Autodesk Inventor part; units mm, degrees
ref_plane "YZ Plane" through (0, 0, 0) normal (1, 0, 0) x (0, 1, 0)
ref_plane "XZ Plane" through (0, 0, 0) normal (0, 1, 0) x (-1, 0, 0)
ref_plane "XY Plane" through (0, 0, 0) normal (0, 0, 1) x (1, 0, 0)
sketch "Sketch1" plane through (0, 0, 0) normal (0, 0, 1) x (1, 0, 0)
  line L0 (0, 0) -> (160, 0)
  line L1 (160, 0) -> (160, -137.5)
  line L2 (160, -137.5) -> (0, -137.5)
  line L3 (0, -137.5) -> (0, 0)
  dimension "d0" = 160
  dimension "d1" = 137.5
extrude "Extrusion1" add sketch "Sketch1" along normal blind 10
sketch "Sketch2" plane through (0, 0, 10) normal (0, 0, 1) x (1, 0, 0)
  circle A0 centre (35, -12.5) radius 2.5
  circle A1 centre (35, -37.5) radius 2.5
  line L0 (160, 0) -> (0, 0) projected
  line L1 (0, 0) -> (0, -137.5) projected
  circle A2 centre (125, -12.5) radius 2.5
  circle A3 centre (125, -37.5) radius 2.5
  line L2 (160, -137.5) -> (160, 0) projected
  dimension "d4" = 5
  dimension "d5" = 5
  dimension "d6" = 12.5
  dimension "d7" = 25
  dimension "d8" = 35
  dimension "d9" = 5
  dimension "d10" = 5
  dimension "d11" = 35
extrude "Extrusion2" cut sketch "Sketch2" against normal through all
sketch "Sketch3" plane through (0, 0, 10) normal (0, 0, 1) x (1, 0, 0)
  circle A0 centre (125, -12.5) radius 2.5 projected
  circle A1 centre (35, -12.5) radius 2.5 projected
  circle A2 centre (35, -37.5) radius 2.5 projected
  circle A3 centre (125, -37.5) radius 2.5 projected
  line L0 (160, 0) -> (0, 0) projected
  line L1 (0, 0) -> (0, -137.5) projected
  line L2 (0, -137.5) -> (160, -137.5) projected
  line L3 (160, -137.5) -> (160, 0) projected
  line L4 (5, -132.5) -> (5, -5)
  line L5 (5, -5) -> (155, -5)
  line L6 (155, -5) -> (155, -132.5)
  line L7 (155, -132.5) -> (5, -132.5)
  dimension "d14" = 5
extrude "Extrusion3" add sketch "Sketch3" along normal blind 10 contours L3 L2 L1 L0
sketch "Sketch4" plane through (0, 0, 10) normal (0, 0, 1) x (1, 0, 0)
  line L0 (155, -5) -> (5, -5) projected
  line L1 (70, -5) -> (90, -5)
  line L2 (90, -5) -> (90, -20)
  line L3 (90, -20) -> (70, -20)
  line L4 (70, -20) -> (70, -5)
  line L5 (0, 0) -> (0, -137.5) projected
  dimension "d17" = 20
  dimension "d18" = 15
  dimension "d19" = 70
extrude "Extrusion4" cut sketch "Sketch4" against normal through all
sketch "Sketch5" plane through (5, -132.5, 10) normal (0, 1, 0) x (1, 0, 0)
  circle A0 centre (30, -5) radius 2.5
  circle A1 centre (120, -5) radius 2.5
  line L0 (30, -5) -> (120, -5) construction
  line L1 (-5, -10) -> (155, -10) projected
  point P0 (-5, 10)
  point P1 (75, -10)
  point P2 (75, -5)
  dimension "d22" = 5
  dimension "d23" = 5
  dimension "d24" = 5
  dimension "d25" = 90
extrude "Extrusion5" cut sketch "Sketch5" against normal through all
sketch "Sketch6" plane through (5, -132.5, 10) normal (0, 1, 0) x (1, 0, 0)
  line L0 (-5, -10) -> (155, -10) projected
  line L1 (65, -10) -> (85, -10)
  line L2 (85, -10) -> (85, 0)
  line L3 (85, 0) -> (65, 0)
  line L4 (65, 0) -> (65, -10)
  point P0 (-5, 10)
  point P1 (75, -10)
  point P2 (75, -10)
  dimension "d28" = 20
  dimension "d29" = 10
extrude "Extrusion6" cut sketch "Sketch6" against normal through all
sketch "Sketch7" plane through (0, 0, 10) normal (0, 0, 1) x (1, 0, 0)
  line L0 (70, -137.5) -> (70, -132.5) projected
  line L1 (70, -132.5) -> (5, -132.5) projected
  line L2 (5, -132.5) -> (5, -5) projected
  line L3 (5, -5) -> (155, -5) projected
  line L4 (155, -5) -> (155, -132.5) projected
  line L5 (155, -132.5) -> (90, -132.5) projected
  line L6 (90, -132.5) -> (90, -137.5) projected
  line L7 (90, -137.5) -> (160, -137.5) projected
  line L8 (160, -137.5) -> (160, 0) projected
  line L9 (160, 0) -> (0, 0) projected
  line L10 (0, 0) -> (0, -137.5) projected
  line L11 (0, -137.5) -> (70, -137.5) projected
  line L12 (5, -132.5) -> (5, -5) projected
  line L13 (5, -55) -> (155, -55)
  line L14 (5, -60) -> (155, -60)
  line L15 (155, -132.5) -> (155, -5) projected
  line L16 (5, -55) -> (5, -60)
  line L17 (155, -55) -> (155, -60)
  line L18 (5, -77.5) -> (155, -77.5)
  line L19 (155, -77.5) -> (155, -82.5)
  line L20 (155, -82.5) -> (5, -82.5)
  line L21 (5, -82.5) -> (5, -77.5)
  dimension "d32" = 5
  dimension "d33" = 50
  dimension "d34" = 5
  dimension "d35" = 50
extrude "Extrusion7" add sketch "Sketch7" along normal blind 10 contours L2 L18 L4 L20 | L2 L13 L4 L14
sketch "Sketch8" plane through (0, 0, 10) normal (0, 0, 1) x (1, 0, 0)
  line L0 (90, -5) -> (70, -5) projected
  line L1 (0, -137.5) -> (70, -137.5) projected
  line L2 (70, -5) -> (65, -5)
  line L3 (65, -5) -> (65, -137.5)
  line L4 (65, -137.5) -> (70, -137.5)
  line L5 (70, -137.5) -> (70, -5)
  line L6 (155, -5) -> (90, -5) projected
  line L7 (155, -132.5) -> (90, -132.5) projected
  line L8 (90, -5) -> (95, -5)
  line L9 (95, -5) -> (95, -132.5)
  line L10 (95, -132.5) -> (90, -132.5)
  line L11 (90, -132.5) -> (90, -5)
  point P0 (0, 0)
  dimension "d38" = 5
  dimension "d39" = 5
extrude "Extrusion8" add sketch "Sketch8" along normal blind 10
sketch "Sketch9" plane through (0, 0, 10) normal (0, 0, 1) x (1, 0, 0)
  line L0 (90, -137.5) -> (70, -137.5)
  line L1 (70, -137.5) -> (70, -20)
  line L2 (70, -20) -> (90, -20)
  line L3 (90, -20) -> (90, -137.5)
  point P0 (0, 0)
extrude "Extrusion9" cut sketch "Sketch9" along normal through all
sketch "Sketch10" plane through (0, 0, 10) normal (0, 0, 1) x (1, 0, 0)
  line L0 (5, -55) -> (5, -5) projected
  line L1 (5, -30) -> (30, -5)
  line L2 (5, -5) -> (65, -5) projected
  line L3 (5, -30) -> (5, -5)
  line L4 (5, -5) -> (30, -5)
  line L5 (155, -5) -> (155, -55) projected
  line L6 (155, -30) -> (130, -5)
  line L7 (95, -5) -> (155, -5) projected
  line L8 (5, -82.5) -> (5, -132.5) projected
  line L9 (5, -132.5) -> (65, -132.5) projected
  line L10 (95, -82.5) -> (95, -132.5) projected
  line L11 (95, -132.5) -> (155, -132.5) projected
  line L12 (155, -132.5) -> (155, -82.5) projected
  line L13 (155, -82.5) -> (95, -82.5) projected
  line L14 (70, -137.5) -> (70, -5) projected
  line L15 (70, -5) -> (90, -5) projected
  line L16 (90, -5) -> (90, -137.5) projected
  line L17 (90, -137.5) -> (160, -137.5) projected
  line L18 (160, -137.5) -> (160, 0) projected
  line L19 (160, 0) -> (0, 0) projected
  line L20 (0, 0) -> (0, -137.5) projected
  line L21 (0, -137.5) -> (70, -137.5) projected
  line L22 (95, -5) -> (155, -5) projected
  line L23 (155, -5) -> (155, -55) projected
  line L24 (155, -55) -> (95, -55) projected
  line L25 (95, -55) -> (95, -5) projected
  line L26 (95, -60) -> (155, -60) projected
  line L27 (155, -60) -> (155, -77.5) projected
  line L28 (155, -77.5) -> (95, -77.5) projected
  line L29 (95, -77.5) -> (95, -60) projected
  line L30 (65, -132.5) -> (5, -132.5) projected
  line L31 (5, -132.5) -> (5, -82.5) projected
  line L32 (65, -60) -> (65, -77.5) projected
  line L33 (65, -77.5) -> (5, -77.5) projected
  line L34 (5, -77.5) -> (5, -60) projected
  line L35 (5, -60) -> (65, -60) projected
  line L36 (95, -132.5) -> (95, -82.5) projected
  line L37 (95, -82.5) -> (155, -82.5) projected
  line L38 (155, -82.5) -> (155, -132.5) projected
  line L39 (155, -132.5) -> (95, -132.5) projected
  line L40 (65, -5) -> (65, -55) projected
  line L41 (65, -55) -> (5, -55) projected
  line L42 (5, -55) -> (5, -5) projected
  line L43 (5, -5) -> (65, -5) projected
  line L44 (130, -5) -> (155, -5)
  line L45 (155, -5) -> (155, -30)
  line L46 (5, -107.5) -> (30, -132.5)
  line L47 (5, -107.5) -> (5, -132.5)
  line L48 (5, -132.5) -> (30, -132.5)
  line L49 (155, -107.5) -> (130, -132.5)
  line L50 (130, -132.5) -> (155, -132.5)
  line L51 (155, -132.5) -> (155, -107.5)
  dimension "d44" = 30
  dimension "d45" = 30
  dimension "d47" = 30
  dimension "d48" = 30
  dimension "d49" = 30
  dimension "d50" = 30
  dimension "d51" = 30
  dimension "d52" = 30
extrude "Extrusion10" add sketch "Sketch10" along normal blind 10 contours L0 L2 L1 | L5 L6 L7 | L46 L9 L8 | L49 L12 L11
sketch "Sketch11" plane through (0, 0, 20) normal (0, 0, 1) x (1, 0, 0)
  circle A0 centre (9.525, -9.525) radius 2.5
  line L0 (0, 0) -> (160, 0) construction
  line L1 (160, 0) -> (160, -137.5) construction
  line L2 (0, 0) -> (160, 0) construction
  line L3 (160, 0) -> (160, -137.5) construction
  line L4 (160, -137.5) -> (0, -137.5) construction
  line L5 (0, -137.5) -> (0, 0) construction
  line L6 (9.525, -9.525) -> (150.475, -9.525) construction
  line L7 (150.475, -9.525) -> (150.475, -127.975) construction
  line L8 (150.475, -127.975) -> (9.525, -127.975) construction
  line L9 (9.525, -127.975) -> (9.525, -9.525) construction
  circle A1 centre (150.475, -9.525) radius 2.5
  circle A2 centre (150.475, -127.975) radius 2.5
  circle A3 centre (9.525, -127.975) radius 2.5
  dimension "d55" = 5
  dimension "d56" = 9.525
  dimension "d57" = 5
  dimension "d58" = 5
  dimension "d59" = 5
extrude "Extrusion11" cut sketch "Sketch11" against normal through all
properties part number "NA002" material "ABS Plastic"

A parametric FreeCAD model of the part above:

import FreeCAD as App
import Part
import Sketcher

V = App.Vector
Q = App.Units.Quantity


def add_polygon(sketch, points):
    """Adds a closed chain of lines whose ends are joined by coincident constraints."""
    first, n = sketch.GeometryCount, len(points)
    for a, b in zip(points, points[1:] + points[:1]):
        sketch.addGeometry(Part.LineSegment(App.Vector(*a, 0), App.Vector(*b, 0)), False)
    for i in range(n):
        sketch.addConstraint(Sketcher.Constraint("Coincident", first + i, 2, first + (i + 1) % n, 1))

doc = App.newDocument("Part")
body = doc.addObject("PartDesign::Body", "Body")

sketch1 = body.newObject("Sketcher::SketchObject", "Sketch")
sketch1.AttachmentSupport = (doc.getObject("XY_Plane"), [""])
sketch1.MapMode = "FlatFace"
add_polygon(sketch1, [(160, 0), (0, 0), (0, -137.5), (160, -137.5)])
sketch1.addConstraint(Sketcher.Constraint("Horizontal", 0))
sketch1.addConstraint(Sketcher.Constraint("Vertical", 1))
sketch1.addConstraint(Sketcher.Constraint("Horizontal", 2))
sketch1.addConstraint(Sketcher.Constraint("Vertical", 3))
sketch1.addConstraint(Sketcher.Constraint("Coincident", 0, 2, -1, 1))
sketch1.addConstraint(Sketcher.Constraint("DistanceX", 0, 2, 0, 1, Q("160 mm")))
sketch1.addConstraint(Sketcher.Constraint("DistanceY", 1, 2, 1, 1, Q("137.5 mm")))
pad1 = body.newObject("PartDesign::Pad", "Pad")
pad1.Profile = sketch1
pad1.Length = 10

sketch2 = body.newObject("Sketcher::SketchObject", "Sketch001")
sketch2.AttachmentSupport = (doc.getObject("XY_Plane"), [""])
sketch2.MapMode = "FlatFace"
sketch2.AttachmentOffset = App.Placement(V(0, 0, 10), App.Rotation())
sketch2.addGeometry(Part.Circle(V(35, -12.5, 0), V(0, 0, 1), 2.5), False)
sketch2.addGeometry(Part.Circle(V(35, -37.5, 0), V(0, 0, 1), 2.5), False)
sketch2.addGeometry(Part.Circle(V(125, -12.5, 0), V(0, 0, 1), 2.5), False)
sketch2.addGeometry(Part.Circle(V(125, -37.5, 0), V(0, 0, 1), 2.5), False)
sketch2.addConstraint(Sketcher.Constraint("Equal", 0, 1))
sketch2.addConstraint(Sketcher.Constraint("Equal", 1, 2))
sketch2.addConstraint(Sketcher.Constraint("Equal", 2, 3))
sketch2.addConstraint(Sketcher.Constraint("Horizontal", 0, 3, 2, 3))
sketch2.addConstraint(Sketcher.Constraint("Horizontal", 1, 3, 3, 3))
sketch2.addConstraint(Sketcher.Constraint("Vertical", 0, 3, 1, 3))
sketch2.addConstraint(Sketcher.Constraint("Vertical", 2, 3, 3, 3))
sketch2.addConstraint(Sketcher.Constraint("Diameter", 0, Q("5 mm")))
sketch2.addConstraint(Sketcher.Constraint("DistanceX", -1, 1, 0, 3, Q("35 mm")))
sketch2.addConstraint(Sketcher.Constraint("DistanceY", 1, 3, 0, 3, Q("25 mm")))
sketch2.addConstraint(Sketcher.Constraint("DistanceY", 0, 3, -1, 1, Q("12.5 mm")))
sketch2.addConstraint(Sketcher.Constraint("DistanceX", -1, 1, 2, 3, Q("125 mm")))
pocket1 = body.newObject("PartDesign::Pocket", "Pocket")
pocket1.Profile = sketch2
pocket1.Type = "ThroughAll"

sketch3 = body.newObject("Sketcher::SketchObject", "Sketch002")
sketch3.AttachmentSupport = (doc.getObject("XY_Plane"), [""])
sketch3.MapMode = "FlatFace"
sketch3.AttachmentOffset = App.Placement(V(0, 0, 10), App.Rotation())
add_polygon(sketch3, [(160, -137.5), (160, 0), (0, 0), (0, -137.5)])
add_polygon(sketch3, [(155, -132.5), (5, -132.5), (5, -5), (155, -5)])
sketch3.addConstraint(Sketcher.Constraint("Vertical", 0))
sketch3.addConstraint(Sketcher.Constraint("Horizontal", 1))
sketch3.addConstraint(Sketcher.Constraint("Vertical", 2))
sketch3.addConstraint(Sketcher.Constraint("Horizontal", 3))
sketch3.addConstraint(Sketcher.Constraint("Horizontal", 4))
sketch3.addConstraint(Sketcher.Constraint("Vertical", 5))
sketch3.addConstraint(Sketcher.Constraint("Horizontal", 6))
sketch3.addConstraint(Sketcher.Constraint("Vertical", 7))
sketch3.addConstraint(Sketcher.Constraint("Coincident", 1, 2, -1, 1))
sketch3.addConstraint(Sketcher.Constraint("DistanceX", -1, 1, 4, 2, Q("5 mm")))
sketch3.addConstraint(Sketcher.Constraint("DistanceY", 5, 2, -1, 1, Q("5 mm")))
sketch3.addConstraint(Sketcher.Constraint("DistanceY", 2, 2, 4, 2, Q("5 mm")))
sketch3.addConstraint(Sketcher.Constraint("DistanceX", 6, 2, 0, 2, Q("5 mm")))
sketch3.addConstraint(Sketcher.Constraint("DistanceX", 1, 2, 1, 1, Q("160 mm")))
sketch3.addConstraint(Sketcher.Constraint("DistanceY", 0, 1, 0, 2, Q("137.5 mm")))
pad2 = body.newObject("PartDesign::Pad", "Pad001")
pad2.Profile = sketch3
pad2.Length = 10

sketch4 = body.newObject("Sketcher::SketchObject", "Sketch003")
sketch4.AttachmentSupport = (doc.getObject("XY_Plane"), [""])
sketch4.MapMode = "FlatFace"
sketch4.AttachmentOffset = App.Placement(V(0, 0, 10), App.Rotation())
add_polygon(sketch4, [(90, -20), (90, -5), (70, -5), (70, -20)])
sketch4.addConstraint(Sketcher.Constraint("Vertical", 0))
sketch4.addConstraint(Sketcher.Constraint("Horizontal", 1))
sketch4.addConstraint(Sketcher.Constraint("Vertical", 2))
sketch4.addConstraint(Sketcher.Constraint("Horizontal", 3))
sketch4.addConstraint(Sketcher.Constraint("DistanceX", 1, 2, 1, 1, Q("20 mm")))
sketch4.addConstraint(Sketcher.Constraint("DistanceY", 0, 1, 0, 2, Q("15 mm")))
sketch4.addConstraint(Sketcher.Constraint("DistanceX", -1, 1, 1, 2, Q("70 mm")))
sketch4.addConstraint(Sketcher.Constraint("DistanceY", 2, 2, -1, 1, Q("20 mm")))
pocket2 = body.newObject("PartDesign::Pocket", "Pocket001")
pocket2.Profile = sketch4
pocket2.Type = "ThroughAll"

sketch5 = body.newObject("Sketcher::SketchObject", "Sketch004")
sketch5.AttachmentSupport = (doc.getObject("XZ_Plane"), [""])
sketch5.MapMode = "FlatFace"
sketch5.AttachmentOffset = App.Placement(V(0, 0, 132.5), App.Rotation())
sketch5.addGeometry(Part.Circle(V(35, 15, 0), V(0, 0, 1), 2.5), False)
sketch5.addGeometry(Part.Circle(V(125, 15, 0), V(0, 0, 1), 2.5), False)
sketch5.addConstraint(Sketcher.Constraint("Equal", 0, 1))
sketch5.addConstraint(Sketcher.Constraint("Horizontal", 0, 3, 1, 3))
sketch5.addConstraint(Sketcher.Constraint("Diameter", 0, Q("5 mm")))
sketch5.addConstraint(Sketcher.Constraint("DistanceX", 0, 3, 1, 3, Q("90 mm")))
sketch5.addConstraint(Sketcher.Constraint("DistanceX", -1, 1, 0, 3, Q("35 mm")))
sketch5.addConstraint(Sketcher.Constraint("DistanceY", -1, 1, 0, 3, Q("15 mm")))
pocket3 = body.newObject("PartDesign::Pocket", "Pocket002")
pocket3.Profile = sketch5
pocket3.Type = "ThroughAll"
pocket3.Reversed = True

sketch6 = body.newObject("Sketcher::SketchObject", "Sketch005")
sketch6.AttachmentSupport = (doc.getObject("XZ_Plane"), [""])
sketch6.MapMode = "FlatFace"
sketch6.AttachmentOffset = App.Placement(V(0, 0, 132.5), App.Rotation())
add_polygon(sketch6, [(70, 10), (70, 20), (90, 20), (90, 10)])
sketch6.addConstraint(Sketcher.Constraint("Vertical", 0))
sketch6.addConstraint(Sketcher.Constraint("Horizontal", 1))
sketch6.addConstraint(Sketcher.Constraint("Vertical", 2))
sketch6.addConstraint(Sketcher.Constraint("Horizontal", 3))
sketch6.addConstraint(Sketcher.Constraint("DistanceX", 1, 1, 1, 2, Q("20 mm")))
sketch6.addConstraint(Sketcher.Constraint("DistanceY", 0, 1, 0, 2, Q("10 mm")))
sketch6.addConstraint(Sketcher.Constraint("DistanceY", -1, 1, 0, 2, Q("20 mm")))
sketch6.addConstraint(Sketcher.Constraint("DistanceX", -1, 1, 0, 2, Q("70 mm")))
pocket4 = body.newObject("PartDesign::Pocket", "Pocket003")
pocket4.Profile = sketch6
pocket4.Type = "ThroughAll"
pocket4.Reversed = True

sketch7 = body.newObject("Sketcher::SketchObject", "Sketch006")
sketch7.AttachmentSupport = (doc.getObject("XY_Plane"), [""])
sketch7.MapMode = "FlatFace"
sketch7.AttachmentOffset = App.Placement(V(0, 0, 10), App.Rotation())
add_polygon(sketch7, [(5, -77.5), (5, -82.5), (155, -82.5), (155, -77.5)])
add_polygon(sketch7, [(5, -55), (5, -60), (155, -60), (155, -55)])
sketch7.addConstraint(Sketcher.Constraint("Vertical", 0))
sketch7.addConstraint(Sketcher.Constraint("Horizontal", 1))
sketch7.addConstraint(Sketcher.Constraint("Vertical", 2))
sketch7.addConstraint(Sketcher.Constraint("Horizontal", 3))
sketch7.addConstraint(Sketcher.Constraint("Vertical", 4))
sketch7.addConstraint(Sketcher.Constraint("Horizontal", 5))
sketch7.addConstraint(Sketcher.Constraint("Vertical", 6))
sketch7.addConstraint(Sketcher.Constraint("Horizontal", 7))
sketch7.addConstraint(Sketcher.Constraint("Vertical", 3, 2, 4, 2))
sketch7.addConstraint(Sketcher.Constraint("Vertical", 2, 2, 5, 2))
sketch7.addConstraint(Sketcher.Constraint("Equal", 2, 4))
sketch7.addConstraint(Sketcher.Constraint("DistanceY", 0, 2, 0, 1, Q("5 mm")))
sketch7.addConstraint(Sketcher.Constraint("DistanceX", -1, 1, 0, 2, Q("5 mm")))
sketch7.addConstraint(Sketcher.Constraint("DistanceX", 1, 1, 1, 2, Q("150 mm")))
sketch7.addConstraint(Sketcher.Constraint("DistanceY", 4, 2, -1, 1, Q("60 mm")))
sketch7.addConstraint(Sketcher.Constraint("DistanceY", 0, 2, -1, 1, Q("82.5 mm")))
pad3 = body.newObject("PartDesign::Pad", "Pad002")
pad3.Profile = sketch7
pad3.Length = 10

sketch8 = body.newObject("Sketcher::SketchObject", "Sketch007")
sketch8.AttachmentSupport = (doc.getObject("XY_Plane"), [""])
sketch8.MapMode = "FlatFace"
sketch8.AttachmentOffset = App.Placement(V(0, 0, 10), App.Rotation())
add_polygon(sketch8, [(70, -137.5), (70, -5), (65, -5), (65, -137.5)])
add_polygon(sketch8, [(95, -5), (90, -5), (90, -132.5), (95, -132.5)])
sketch8.addConstraint(Sketcher.Constraint("Vertical", 0))
sketch8.addConstraint(Sketcher.Constraint("Horizontal", 1))
sketch8.addConstraint(Sketcher.Constraint("Vertical", 2))
sketch8.addConstraint(Sketcher.Constraint("Horizontal", 3))
sketch8.addConstraint(Sketcher.Constraint("Horizontal", 4))
sketch8.addConstraint(Sketcher.Constraint("Vertical", 5))
sketch8.addConstraint(Sketcher.Constraint("Horizontal", 6))
sketch8.addConstraint(Sketcher.Constraint("Vertical", 7))
sketch8.addConstraint(Sketcher.Constraint("Horizontal", 1, 2, 4, 2))
sketch8.addConstraint(Sketcher.Constraint("Equal", 3, 4))
sketch8.addConstraint(Sketcher.Constraint("DistanceX", 1, 2, 1, 1, Q("5 mm")))
sketch8.addConstraint(Sketcher.Constraint("DistanceY", 0, 2, -1, 1, Q("5 mm")))
sketch8.addConstraint(Sketcher.Constraint("DistanceY", 3, 2, 5, 2, Q("5 mm")))
sketch8.addConstraint(Sketcher.Constraint("DistanceY", 0, 1, 0, 2, Q("132.5 mm")))
sketch8.addConstraint(Sketcher.Constraint("DistanceX", -1, 1, 0, 2, Q("70 mm")))
sketch8.addConstraint(Sketcher.Constraint("DistanceX", -1, 1, 4, 2, Q("90 mm")))
pad4 = body.newObject("PartDesign::Pad", "Pad003")
pad4.Profile = sketch8
pad4.Length = 10

sketch9 = body.newObject("Sketcher::SketchObject", "Sketch008")
sketch9.AttachmentSupport = (doc.getObject("XY_Plane"), [""])
sketch9.MapMode = "FlatFace"
sketch9.AttachmentOffset = App.Placement(V(0, 0, 10), App.Rotation())
add_polygon(sketch9, [(70, -137.5), (90, -137.5), (90, -20), (70, -20)])
sketch9.addConstraint(Sketcher.Constraint("Horizontal", 0))
sketch9.addConstraint(Sketcher.Constraint("Vertical", 1))
sketch9.addConstraint(Sketcher.Constraint("Horizontal", 2))
sketch9.addConstraint(Sketcher.Constraint("Vertical", 3))
sketch9.addConstraint(Sketcher.Constraint("DistanceX", 0, 1, 0, 2, Q("20 mm")))
sketch9.addConstraint(Sketcher.Constraint("DistanceY", 1, 1, 1, 2, Q("117.5 mm")))
sketch9.addConstraint(Sketcher.Constraint("DistanceX", -1, 1, 0, 2, Q("90 mm")))
sketch9.addConstraint(Sketcher.Constraint("DistanceY", 1, 2, -1, 1, Q("20 mm")))
pocket5 = body.newObject("PartDesign::Pocket", "Pocket004")
pocket5.Profile = sketch9
pocket5.Type = "ThroughAll"
pocket5.Reversed = True

sketch10 = body.newObject("Sketcher::SketchObject", "Sketch009")
sketch10.AttachmentSupport = (doc.getObject("XY_Plane"), [""])
sketch10.MapMode = "FlatFace"
sketch10.AttachmentOffset = App.Placement(V(0, 0, 10), App.Rotation())
add_polygon(sketch10, [(5, -5), (5, -30), (30, -5)])
add_polygon(sketch10, [(155, -30), (155, -5), (130, -5)])
add_polygon(sketch10, [(30, -132.5), (5, -107.5), (5, -132.5)])
add_polygon(sketch10, [(155, -107.5), (130, -132.5), (155, -132.5)])
sketch10.addConstraint(Sketcher.Constraint("Vertical", 0))
sketch10.addConstraint(Sketcher.Constraint("Horizontal", 2))
sketch10.addConstraint(Sketcher.Constraint("Vertical", 3))
sketch10.addConstraint(Sketcher.Constraint("Horizontal", 4))
sketch10.addConstraint(Sketcher.Constraint("Vertical", 7))
sketch10.addConstraint(Sketcher.Constraint("Horizontal", 8))
sketch10.addConstraint(Sketcher.Constraint("Horizontal", 10))
sketch10.addConstraint(Sketcher.Constraint("Vertical", 11))
sketch10.addConstraint(Sketcher.Constraint("Perpendicular", 1, 5))
sketch10.addConstraint(Sketcher.Constraint("Parallel", 5, 6))
sketch10.addConstraint(Sketcher.Constraint("Perpendicular", 6, 9))
sketch10.addConstraint(Sketcher.Constraint("Horizontal", 2, 2, 3, 2))
sketch10.addConstraint(Sketcher.Constraint("Horizontal", 0, 2, 5, 2))
sketch10.addConstraint(Sketcher.Constraint("Horizontal", 8, 2, 9, 2))
sketch10.addConstraint(Sketcher.Constraint("Horizontal", 6, 2, 11, 2))
sketch10.addConstraint(Sketcher.Constraint("Vertical", 2, 2, 6, 2))
sketch10.addConstraint(Sketcher.Constraint("Vertical", 1, 2, 8, 2))
sketch10.addConstraint(Sketcher.Constraint("Vertical", 4, 2, 9, 2))
sketch10.addConstraint(Sketcher.Constraint("Vertical", 5, 2, 10, 2))
sketch10.addConstraint(Sketcher.Constraint("DistanceY", 0, 2, -1, 1, Q("30 mm")))
sketch10.addConstraint(Sketcher.Constraint("DistanceX", -1, 1, 1, 2, Q("30 mm")))
sketch10.addConstraint(Sketcher.Constraint("DistanceX", 2, 2, 2, 1, Q("25 mm")))
sketch10.addConstraint(Sketcher.Constraint("DistanceX", -1, 1, 3, 2, Q("155 mm")))
sketch10.addConstraint(Sketcher.Constraint("DistanceY", 6, 2, -1, 1, Q("107.5 mm")))
pad5 = body.newObject("PartDesign::Pad", "Pad004")
pad5.Profile = sketch10
pad5.Length = 10

sketch11 = body.newObject("Sketcher::SketchObject", "Sketch010")
sketch11.AttachmentSupport = (doc.getObject("XY_Plane"), [""])
sketch11.MapMode = "FlatFace"
sketch11.AttachmentOffset = App.Placement(V(0, 0, 20), App.Rotation())
sketch11.addGeometry(Part.Circle(V(9.525, -9.525, 0), V(0, 0, 1), 2.5), False)
sketch11.addGeometry(Part.Circle(V(150.475, -9.525, 0), V(0, 0, 1), 2.5), False)
sketch11.addGeometry(Part.Circle(V(150.475, -127.975, 0), V(0, 0, 1), 2.5), False)
sketch11.addGeometry(Part.Circle(V(9.525, -127.975, 0), V(0, 0, 1), 2.5), False)
sketch11.addConstraint(Sketcher.Constraint("Equal", 0, 1))
sketch11.addConstraint(Sketcher.Constraint("Equal", 1, 2))
sketch11.addConstraint(Sketcher.Constraint("Equal", 2, 3))
sketch11.addConstraint(Sketcher.Constraint("Horizontal", 0, 3, 1, 3))
sketch11.addConstraint(Sketcher.Constraint("Horizontal", 2, 3, 3, 3))
sketch11.addConstraint(Sketcher.Constraint("Vertical", 1, 3, 2, 3))
sketch11.addConstraint(Sketcher.Constraint("Vertical", 0, 3, 3, 3))
sketch11.addConstraint(Sketcher.Constraint("Diameter", 0, Q("5 mm")))
sketch11.addConstraint(Sketcher.Constraint("DistanceX", -1, 1, 0, 3, Q("9.525 mm")))
sketch11.addConstraint(Sketcher.Constraint("DistanceY", 0, 3, -1, 1, Q("9.525 mm")))
sketch11.addConstraint(Sketcher.Constraint("DistanceX", 0, 3, 1, 3, Q("140.95 mm")))
sketch11.addConstraint(Sketcher.Constraint("DistanceY", 2, 3, 1, 3, Q("118.45 mm")))
pocket6 = body.newObject("PartDesign::Pocket", "Pocket005")
pocket6.Profile = sketch11
pocket6.Type = "ThroughAll"

doc.recompute()
